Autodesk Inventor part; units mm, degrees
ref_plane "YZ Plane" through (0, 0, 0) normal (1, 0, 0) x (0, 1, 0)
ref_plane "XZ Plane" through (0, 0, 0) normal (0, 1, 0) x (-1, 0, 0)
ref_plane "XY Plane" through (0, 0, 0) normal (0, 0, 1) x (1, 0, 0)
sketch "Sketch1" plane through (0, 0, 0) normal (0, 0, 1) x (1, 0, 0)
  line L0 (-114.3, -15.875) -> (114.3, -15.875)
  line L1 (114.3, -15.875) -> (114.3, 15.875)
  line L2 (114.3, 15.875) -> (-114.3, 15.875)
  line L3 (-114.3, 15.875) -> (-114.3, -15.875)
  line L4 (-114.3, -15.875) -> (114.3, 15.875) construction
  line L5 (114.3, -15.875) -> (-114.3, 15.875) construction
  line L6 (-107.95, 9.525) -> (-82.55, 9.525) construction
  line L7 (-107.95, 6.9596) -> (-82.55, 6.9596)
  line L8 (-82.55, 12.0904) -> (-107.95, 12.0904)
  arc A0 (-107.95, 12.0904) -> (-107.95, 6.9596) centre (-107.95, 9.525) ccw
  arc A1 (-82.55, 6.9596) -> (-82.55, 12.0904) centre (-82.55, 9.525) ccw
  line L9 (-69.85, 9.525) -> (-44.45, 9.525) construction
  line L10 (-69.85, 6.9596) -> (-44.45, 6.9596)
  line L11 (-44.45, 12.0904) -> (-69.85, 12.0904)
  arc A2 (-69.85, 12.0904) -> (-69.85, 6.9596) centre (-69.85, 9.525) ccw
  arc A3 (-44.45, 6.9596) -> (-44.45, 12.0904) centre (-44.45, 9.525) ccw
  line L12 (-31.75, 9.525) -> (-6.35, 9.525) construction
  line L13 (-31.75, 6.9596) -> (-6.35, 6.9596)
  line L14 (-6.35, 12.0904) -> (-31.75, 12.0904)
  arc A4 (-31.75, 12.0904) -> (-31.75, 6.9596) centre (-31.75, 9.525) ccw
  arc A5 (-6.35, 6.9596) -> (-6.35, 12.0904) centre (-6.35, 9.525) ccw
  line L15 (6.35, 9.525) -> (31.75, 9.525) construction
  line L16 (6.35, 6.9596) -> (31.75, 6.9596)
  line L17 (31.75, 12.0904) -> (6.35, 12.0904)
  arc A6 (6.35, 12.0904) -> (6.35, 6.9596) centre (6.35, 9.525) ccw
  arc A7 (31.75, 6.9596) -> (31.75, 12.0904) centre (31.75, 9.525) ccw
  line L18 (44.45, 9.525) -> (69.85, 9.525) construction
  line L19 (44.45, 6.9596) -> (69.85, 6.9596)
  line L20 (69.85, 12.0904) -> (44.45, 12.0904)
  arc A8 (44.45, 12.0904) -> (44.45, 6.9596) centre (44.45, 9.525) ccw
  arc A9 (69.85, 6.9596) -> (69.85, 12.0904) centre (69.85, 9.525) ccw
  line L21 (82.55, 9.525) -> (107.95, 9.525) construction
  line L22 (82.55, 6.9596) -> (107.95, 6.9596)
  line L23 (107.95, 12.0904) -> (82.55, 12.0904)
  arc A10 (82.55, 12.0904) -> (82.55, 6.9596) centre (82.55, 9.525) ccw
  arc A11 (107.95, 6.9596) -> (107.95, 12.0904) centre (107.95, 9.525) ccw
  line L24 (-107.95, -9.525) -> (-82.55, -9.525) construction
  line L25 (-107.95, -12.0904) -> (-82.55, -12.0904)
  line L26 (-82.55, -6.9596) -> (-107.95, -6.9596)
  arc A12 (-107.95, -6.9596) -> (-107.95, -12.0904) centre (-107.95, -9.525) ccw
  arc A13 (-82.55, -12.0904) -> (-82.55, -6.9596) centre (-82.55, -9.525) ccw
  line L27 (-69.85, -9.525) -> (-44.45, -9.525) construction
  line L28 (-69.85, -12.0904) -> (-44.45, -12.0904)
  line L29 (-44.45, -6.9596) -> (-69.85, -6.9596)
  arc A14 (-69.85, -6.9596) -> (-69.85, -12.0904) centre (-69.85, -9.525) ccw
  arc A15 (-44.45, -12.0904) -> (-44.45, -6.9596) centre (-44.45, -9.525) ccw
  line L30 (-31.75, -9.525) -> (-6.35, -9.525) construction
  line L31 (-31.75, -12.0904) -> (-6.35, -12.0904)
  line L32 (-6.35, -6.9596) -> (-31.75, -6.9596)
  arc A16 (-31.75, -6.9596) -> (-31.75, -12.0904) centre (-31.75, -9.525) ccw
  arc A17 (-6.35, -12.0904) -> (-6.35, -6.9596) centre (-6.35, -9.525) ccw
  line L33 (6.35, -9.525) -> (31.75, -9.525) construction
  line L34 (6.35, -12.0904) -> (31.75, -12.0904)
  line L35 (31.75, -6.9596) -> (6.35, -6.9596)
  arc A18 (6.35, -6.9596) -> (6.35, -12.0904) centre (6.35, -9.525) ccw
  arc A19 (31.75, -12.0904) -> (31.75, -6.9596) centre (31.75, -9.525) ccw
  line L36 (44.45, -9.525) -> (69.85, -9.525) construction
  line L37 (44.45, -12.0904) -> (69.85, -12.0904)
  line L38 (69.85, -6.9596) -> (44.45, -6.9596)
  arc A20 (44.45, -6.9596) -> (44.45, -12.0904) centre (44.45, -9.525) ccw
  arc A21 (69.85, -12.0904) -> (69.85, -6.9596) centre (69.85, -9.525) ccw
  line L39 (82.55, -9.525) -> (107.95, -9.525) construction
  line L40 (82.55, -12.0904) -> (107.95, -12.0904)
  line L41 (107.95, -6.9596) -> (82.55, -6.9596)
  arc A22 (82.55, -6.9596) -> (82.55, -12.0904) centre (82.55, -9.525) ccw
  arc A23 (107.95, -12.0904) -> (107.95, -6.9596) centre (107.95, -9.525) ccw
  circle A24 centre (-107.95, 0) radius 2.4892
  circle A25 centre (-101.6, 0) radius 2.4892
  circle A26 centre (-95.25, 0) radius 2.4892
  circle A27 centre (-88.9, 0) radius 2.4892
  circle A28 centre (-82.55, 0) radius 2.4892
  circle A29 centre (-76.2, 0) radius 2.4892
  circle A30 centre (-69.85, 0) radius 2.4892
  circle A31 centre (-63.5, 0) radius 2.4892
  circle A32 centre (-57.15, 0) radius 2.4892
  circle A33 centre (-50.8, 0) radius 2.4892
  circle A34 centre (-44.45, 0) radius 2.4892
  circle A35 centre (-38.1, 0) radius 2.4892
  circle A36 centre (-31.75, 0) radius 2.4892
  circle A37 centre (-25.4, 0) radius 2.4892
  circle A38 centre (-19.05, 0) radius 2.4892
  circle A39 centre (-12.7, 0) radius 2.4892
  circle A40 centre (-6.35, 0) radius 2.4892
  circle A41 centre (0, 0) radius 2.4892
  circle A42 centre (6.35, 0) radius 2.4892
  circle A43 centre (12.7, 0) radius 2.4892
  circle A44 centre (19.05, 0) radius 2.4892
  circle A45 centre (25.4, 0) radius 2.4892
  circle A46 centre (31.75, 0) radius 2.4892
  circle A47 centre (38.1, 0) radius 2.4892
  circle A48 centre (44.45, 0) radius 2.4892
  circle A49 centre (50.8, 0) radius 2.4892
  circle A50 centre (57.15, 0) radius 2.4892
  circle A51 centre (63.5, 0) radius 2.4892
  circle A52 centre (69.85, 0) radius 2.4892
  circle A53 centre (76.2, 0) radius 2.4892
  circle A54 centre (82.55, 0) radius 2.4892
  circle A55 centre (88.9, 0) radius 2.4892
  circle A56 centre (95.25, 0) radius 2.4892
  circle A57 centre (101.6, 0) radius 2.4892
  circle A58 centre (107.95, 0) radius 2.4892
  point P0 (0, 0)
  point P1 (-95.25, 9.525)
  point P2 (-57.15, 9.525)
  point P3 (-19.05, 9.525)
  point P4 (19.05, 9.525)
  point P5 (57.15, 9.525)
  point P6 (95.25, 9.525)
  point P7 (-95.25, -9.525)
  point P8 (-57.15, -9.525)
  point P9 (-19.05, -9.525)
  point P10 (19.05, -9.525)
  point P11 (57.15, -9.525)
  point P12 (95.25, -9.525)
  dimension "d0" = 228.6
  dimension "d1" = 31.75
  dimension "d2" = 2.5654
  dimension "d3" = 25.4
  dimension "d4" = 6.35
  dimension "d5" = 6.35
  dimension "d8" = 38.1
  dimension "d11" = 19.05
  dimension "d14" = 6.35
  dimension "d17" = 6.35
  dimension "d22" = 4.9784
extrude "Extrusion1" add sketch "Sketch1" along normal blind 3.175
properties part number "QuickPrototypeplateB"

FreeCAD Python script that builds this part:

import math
import FreeCAD as App
import Part
import Sketcher

V = App.Vector
Q = App.Units.Quantity

doc = App.newDocument("Part")
body = doc.addObject("PartDesign::Body", "Body")

# Sketch on XY plane
sketch1 = doc.addObject("Sketcher::SketchObject", "Sketch")
body.addObject(sketch1)
sketch1.AttachmentSupport = (doc.XY_Plane, [""])
sketch1.MapMode = "FlatFace"
sketch1.addGeometry(Part.LineSegment(V(-114.3, 15.9, 0), V(-114.3, -15.9, 0)), False)
sketch1.addGeometry(Part.LineSegment(V(-114.3, -15.9, 0), V(114.3, -15.9, 0)), False)
sketch1.addGeometry(Part.LineSegment(V(114.3, -15.9, 0), V(114.3, 15.9, 0)), False)
sketch1.addGeometry(Part.LineSegment(V(114.3, 15.9, 0), V(-114.3, 15.9, 0)), False)
sketch1.addGeometry(Part.LineSegment(V(-82.5, -12.1, 0), V(-108, -12.1, 0)), False)
sketch1.addGeometry(Part.ArcOfCircle(Part.Circle(V(-108, -9.5, 0), V(0, 0, 1), 2.6), math.radians(90), math.radians(270)), False)
sketch1.addGeometry(Part.LineSegment(V(-108, -7, 0), V(-82.5, -7, 0)), False)
sketch1.addGeometry(Part.ArcOfCircle(Part.Circle(V(-82.5, -9.5, 0), V(0, 0, 1), 2.6), math.radians(-90), math.radians(90)), False)
sketch1.addGeometry(Part.LineSegment(V(-44.5, -12.1, 0), V(-69.8, -12.1, 0)), False)
sketch1.addGeometry(Part.ArcOfCircle(Part.Circle(V(-69.8, -9.5, 0), V(0, 0, 1), 2.6), math.radians(90), math.radians(270)), False)
sketch1.addGeometry(Part.LineSegment(V(-69.8, -7, 0), V(-44.5, -7, 0)), False)
sketch1.addGeometry(Part.ArcOfCircle(Part.Circle(V(-44.5, -9.5, 0), V(0, 0, 1), 2.6), math.radians(-90), math.radians(90)), False)
sketch1.addGeometry(Part.LineSegment(V(-6.3, -12.1, 0), V(-31.8, -12.1, 0)), False)
sketch1.addGeometry(Part.ArcOfCircle(Part.Circle(V(-31.8, -9.5, 0), V(0, 0, 1), 2.6), math.radians(90), math.radians(270)), False)
sketch1.addGeometry(Part.LineSegment(V(-31.8, -7, 0), V(-6.3, -7, 0)), False)
sketch1.addGeometry(Part.ArcOfCircle(Part.Circle(V(-6.3, -9.5, 0), V(0, 0, 1), 2.6), math.radians(-90), math.radians(90)), False)
sketch1.addGeometry(Part.LineSegment(V(31.8, -12.1, 0), V(6.3, -12.1, 0)), False)
sketch1.addGeometry(Part.ArcOfCircle(Part.Circle(V(6.3, -9.5, 0), V(0, 0, 1), 2.6), math.radians(90), math.radians(270)), False)
sketch1.addGeometry(Part.LineSegment(V(6.3, -7, 0), V(31.8, -7, 0)), False)
sketch1.addGeometry(Part.ArcOfCircle(Part.Circle(V(31.8, -9.5, 0), V(0, 0, 1), 2.6), math.radians(-90), math.radians(90)), False)
sketch1.addGeometry(Part.LineSegment(V(69.8, -12.1, 0), V(44.5, -12.1, 0)), False)
sketch1.addGeometry(Part.ArcOfCircle(Part.Circle(V(44.5, -9.5, 0), V(0, 0, 1), 2.6), math.radians(90), math.radians(270)), False)
sketch1.addGeometry(Part.LineSegment(V(44.5, -7, 0), V(69.8, -7, 0)), False)
sketch1.addGeometry(Part.ArcOfCircle(Part.Circle(V(69.8, -9.5, 0), V(0, 0, 1), 2.6), math.radians(-90), math.radians(90)), False)
sketch1.addGeometry(Part.LineSegment(V(108, -12.1, 0), V(82.5, -12.1, 0)), False)
sketch1.addGeometry(Part.ArcOfCircle(Part.Circle(V(82.5, -9.5, 0), V(0, 0, 1), 2.6), math.radians(90), math.radians(270)), False)
sketch1.addGeometry(Part.LineSegment(V(82.5, -7, 0), V(108, -7, 0)), False)
sketch1.addGeometry(Part.ArcOfCircle(Part.Circle(V(108, -9.5, 0), V(0, 0, 1), 2.6), math.radians(-90), math.radians(90)), False)
sketch1.addGeometry(Part.Circle(V(-108, 0, 0), V(0, 0, 1), 2.5), False)
sketch1.addGeometry(Part.Circle(V(-101.6, 0, 0), V(0, 0, 1), 2.5), False)
sketch1.addGeometry(Part.Circle(V(-95.2, 0, 0), V(0, 0, 1), 2.5), False)
sketch1.addGeometry(Part.Circle(V(-88.9, 0, 0), V(0, 0, 1), 2.5), False)
sketch1.addGeometry(Part.Circle(V(-82.5, 0, 0), V(0, 0, 1), 2.5), False)
sketch1.addGeometry(Part.Circle(V(-76.2, 0, 0), V(0, 0, 1), 2.5), False)
sketch1.addGeometry(Part.Circle(V(-69.8, 0, 0), V(0, 0, 1), 2.5), False)
sketch1.addGeometry(Part.Circle(V(-63.5, 0, 0), V(0, 0, 1), 2.5), False)
sketch1.addGeometry(Part.Circle(V(-57.1, 0, 0), V(0, 0, 1), 2.5), False)
sketch1.addGeometry(Part.Circle(V(-50.8, 0, 0), V(0, 0, 1), 2.5), False)
sketch1.addGeometry(Part.Circle(V(-44.5, 0, 0), V(0, 0, 1), 2.5), False)
sketch1.addGeometry(Part.Circle(V(-38.1, 0, 0), V(0, 0, 1), 2.5), False)
sketch1.addGeometry(Part.Circle(V(-31.8, 0, 0), V(0, 0, 1), 2.5), False)
sketch1.addGeometry(Part.Circle(V(-25.4, 0, 0), V(0, 0, 1), 2.5), False)
sketch1.addGeometry(Part.Circle(V(-19.1, 0, 0), V(0, 0, 1), 2.5), False)
sketch1.addGeometry(Part.Circle(V(-12.7, 0, 0), V(0, 0, 1), 2.5), False)
sketch1.addGeometry(Part.Circle(V(-6.3, 0, 0), V(0, 0, 1), 2.5), False)
sketch1.addGeometry(Part.LineSegment(V(-82.5, 7, 0), V(-108, 7, 0)), False)
sketch1.addGeometry(Part.ArcOfCircle(Part.Circle(V(-108, 9.5, 0), V(0, 0, 1), 2.6), math.radians(90), math.radians(270)), False)
sketch1.addGeometry(Part.LineSegment(V(-108, 12.1, 0), V(-82.5, 12.1, 0)), False)
sketch1.addGeometry(Part.ArcOfCircle(Part.Circle(V(-82.5, 9.5, 0), V(0, 0, 1), 2.6), math.radians(-90), math.radians(90)), False)
sketch1.addGeometry(Part.LineSegment(V(-44.5, 7, 0), V(-69.8, 7, 0)), False)
sketch1.addGeometry(Part.ArcOfCircle(Part.Circle(V(-69.8, 9.5, 0), V(0, 0, 1), 2.6), math.radians(90), math.radians(270)), False)
sketch1.addGeometry(Part.LineSegment(V(-69.8, 12.1, 0), V(-44.5, 12.1, 0)), False)
sketch1.addGeometry(Part.ArcOfCircle(Part.Circle(V(-44.5, 9.5, 0), V(0, 0, 1), 2.6), math.radians(-90), math.radians(90)), False)
sketch1.addGeometry(Part.LineSegment(V(-6.3, 7, 0), V(-31.8, 7, 0)), False)
sketch1.addGeometry(Part.ArcOfCircle(Part.Circle(V(-31.8, 9.5, 0), V(0, 0, 1), 2.6), math.radians(90), math.radians(270)), False)
sketch1.addGeometry(Part.LineSegment(V(-31.8, 12.1, 0), V(-6.3, 12.1, 0)), False)
sketch1.addGeometry(Part.ArcOfCircle(Part.Circle(V(-6.3, 9.5, 0), V(0, 0, 1), 2.6), math.radians(-90), math.radians(90)), False)
sketch1.addGeometry(Part.Circle(V(0, 0, 0), V(0, 0, 1), 2.5), False)
sketch1.addGeometry(Part.Circle(V(6.3, 0, 0), V(0, 0, 1), 2.5), False)
sketch1.addGeometry(Part.Circle(V(12.7, 0, 0), V(0, 0, 1), 2.5), False)
sketch1.addGeometry(Part.Circle(V(19.1, 0, 0), V(0, 0, 1), 2.5), False)
sketch1.addGeometry(Part.Circle(V(25.4, 0, 0), V(0, 0, 1), 2.5), False)
sketch1.addGeometry(Part.Circle(V(31.8, 0, 0), V(0, 0, 1), 2.5), False)
sketch1.addGeometry(Part.Circle(V(38.1, 0, 0), V(0, 0, 1), 2.5), False)
sketch1.addGeometry(Part.Circle(V(44.5, 0, 0), V(0, 0, 1), 2.5), False)
sketch1.addGeometry(Part.Circle(V(50.8, 0, 0), V(0, 0, 1), 2.5), False)
sketch1.addGeometry(Part.Circle(V(57.1, 0, 0), V(0, 0, 1), 2.5), False)
sketch1.addGeometry(Part.Circle(V(63.5, 0, 0), V(0, 0, 1), 2.5), False)
sketch1.addGeometry(Part.Circle(V(69.8, 0, 0), V(0, 0, 1), 2.5), False)
sketch1.addGeometry(Part.Circle(V(76.2, 0, 0), V(0, 0, 1), 2.5), False)
sketch1.addGeometry(Part.Circle(V(82.5, 0, 0), V(0, 0, 1), 2.5), False)
sketch1.addGeometry(Part.Circle(V(88.9, 0, 0), V(0, 0, 1), 2.5), False)
sketch1.addGeometry(Part.Circle(V(95.2, 0, 0), V(0, 0, 1), 2.5), False)
sketch1.addGeometry(Part.Circle(V(101.6, 0, 0), V(0, 0, 1), 2.5), False)
sketch1.addGeometry(Part.Circle(V(108, 0, 0), V(0, 0, 1), 2.5), False)
sketch1.addGeometry(Part.LineSegment(V(31.8, 7, 0), V(6.3, 7, 0)), False)
sketch1.addGeometry(Part.ArcOfCircle(Part.Circle(V(6.3, 9.5, 0), V(0, 0, 1), 2.6), math.radians(90), math.radians(270)), False)
sketch1.addGeometry(Part.LineSegment(V(6.3, 12.1, 0), V(31.8, 12.1, 0)), False)
sketch1.addGeometry(Part.ArcOfCircle(Part.Circle(V(31.8, 9.5, 0), V(0, 0, 1), 2.6), math.radians(-90), math.radians(90)), False)
sketch1.addGeometry(Part.LineSegment(V(69.8, 7, 0), V(44.5, 7, 0)), False)
sketch1.addGeometry(Part.ArcOfCircle(Part.Circle(V(44.5, 9.5, 0), V(0, 0, 1), 2.6), math.radians(90), math.radians(270)), False)
sketch1.addGeometry(Part.LineSegment(V(44.5, 12.1, 0), V(69.8, 12.1, 0)), False)
sketch1.addGeometry(Part.ArcOfCircle(Part.Circle(V(69.8, 9.5, 0), V(0, 0, 1), 2.6), math.radians(-90), math.radians(90)), False)
sketch1.addGeometry(Part.LineSegment(V(108, 7, 0), V(82.5, 7, 0)), False)
sketch1.addGeometry(Part.ArcOfCircle(Part.Circle(V(82.5, 9.5, 0), V(0, 0, 1), 2.6), math.radians(90), math.radians(270)), False)
sketch1.addGeometry(Part.LineSegment(V(82.5, 12.1, 0), V(108, 12.1, 0)), False)
sketch1.addGeometry(Part.ArcOfCircle(Part.Circle(V(108, 9.5, 0), V(0, 0, 1), 2.6), math.radians(-90), math.radians(90)), False)
sketch1.addConstraint(Sketcher.Constraint("Coincident", 0, 2, 1, 1))
sketch1.addConstraint(Sketcher.Constraint("Coincident", 1, 2, 2, 1))
sketch1.addConstraint(Sketcher.Constraint("Coincident", 2, 2, 3, 1))
sketch1.addConstraint(Sketcher.Constraint("Coincident", 3, 2, 0, 1))
sketch1.addConstraint(Sketcher.Constraint("Tangent", 4, 2, 5, 2))
sketch1.addConstraint(Sketcher.Constraint("Tangent", 5, 1, 6, 1))
sketch1.addConstraint(Sketcher.Constraint("Tangent", 6, 2, 7, 2))
sketch1.addConstraint(Sketcher.Constraint("Tangent", 7, 1, 4, 1))
sketch1.addConstraint(Sketcher.Constraint("Tangent", 8, 2, 9, 2))
sketch1.addConstraint(Sketcher.Constraint("Tangent", 9, 1, 10, 1))
sketch1.addConstraint(Sketcher.Constraint("Tangent", 10, 2, 11, 2))
sketch1.addConstraint(Sketcher.Constraint("Tangent", 11, 1, 8, 1))
sketch1.addConstraint(Sketcher.Constraint("Tangent", 12, 2, 13, 2))
sketch1.addConstraint(Sketcher.Constraint("Tangent", 13, 1, 14, 1))
sketch1.addConstraint(Sketcher.Constraint("Tangent", 14, 2, 15, 2))
sketch1.addConstraint(Sketcher.Constraint("Tangent", 15, 1, 12, 1))
sketch1.addConstraint(Sketcher.Constraint("Tangent", 16, 2, 17, 2))
sketch1.addConstraint(Sketcher.Constraint("Tangent", 17, 1, 18, 1))
sketch1.addConstraint(Sketcher.Constraint("Tangent", 18, 2, 19, 2))
sketch1.addConstraint(Sketcher.Constraint("Tangent", 19, 1, 16, 1))
sketch1.addConstraint(Sketcher.Constraint("Tangent", 20, 2, 21, 2))
sketch1.addConstraint(Sketcher.Constraint("Tangent", 21, 1, 22, 1))
sketch1.addConstraint(Sketcher.Constraint("Tangent", 22, 2, 23, 2))
sketch1.addConstraint(Sketcher.Constraint("Tangent", 23, 1, 20, 1))
sketch1.addConstraint(Sketcher.Constraint("Tangent", 24, 2, 25, 2))
sketch1.addConstraint(Sketcher.Constraint("Tangent", 25, 1, 26, 1))
sketch1.addConstraint(Sketcher.Constraint("Tangent", 26, 2, 27, 2))
sketch1.addConstraint(Sketcher.Constraint("Tangent", 27, 1, 24, 1))
sketch1.addConstraint(Sketcher.Constraint("Tangent", 45, 2, 46, 2))
sketch1.addConstraint(Sketcher.Constraint("Tangent", 46, 1, 47, 1))
sketch1.addConstraint(Sketcher.Constraint("Tangent", 47, 2, 48, 2))
sketch1.addConstraint(Sketcher.Constraint("Tangent", 48, 1, 45, 1))
sketch1.addConstraint(Sketcher.Constraint("Tangent", 49, 2, 50, 2))
sketch1.addConstraint(Sketcher.Constraint("Tangent", 50, 1, 51, 1))
sketch1.addConstraint(Sketcher.Constraint("Tangent", 51, 2, 52, 2))
sketch1.addConstraint(Sketcher.Constraint("Tangent", 52, 1, 49, 1))
sketch1.addConstraint(Sketcher.Constraint("Tangent", 53, 2, 54, 2))
sketch1.addConstraint(Sketcher.Constraint("Tangent", 54, 1, 55, 1))
sketch1.addConstraint(Sketcher.Constraint("Tangent", 55, 2, 56, 2))
sketch1.addConstraint(Sketcher.Constraint("Tangent", 56, 1, 53, 1))
sketch1.addConstraint(Sketcher.Constraint("Tangent", 75, 2, 76, 2))
sketch1.addConstraint(Sketcher.Constraint("Tangent", 76, 1, 77, 1))
sketch1.addConstraint(Sketcher.Constraint("Tangent", 77, 2, 78, 2))
sketch1.addConstraint(Sketcher.Constraint("Tangent", 78, 1, 75, 1))
sketch1.addConstraint(Sketcher.Constraint("Tangent", 79, 2, 80, 2))
sketch1.addConstraint(Sketcher.Constraint("Tangent", 80, 1, 81, 1))
sketch1.addConstraint(Sketcher.Constraint("Tangent", 81, 2, 82, 2))
sketch1.addConstraint(Sketcher.Constraint("Tangent", 82, 1, 79, 1))
sketch1.addConstraint(Sketcher.Constraint("Tangent", 83, 2, 84, 2))
sketch1.addConstraint(Sketcher.Constraint("Tangent", 84, 1, 85, 1))
sketch1.addConstraint(Sketcher.Constraint("Tangent", 85, 2, 86, 2))
sketch1.addConstraint(Sketcher.Constraint("Tangent", 86, 1, 83, 1))
sketch1.addConstraint(Sketcher.Constraint("Vertical", 0))
sketch1.addConstraint(Sketcher.Constraint("Horizontal", 1))
sketch1.addConstraint(Sketcher.Constraint("Vertical", 2))
sketch1.addConstraint(Sketcher.Constraint("Horizontal", 3))
sketch1.addConstraint(Sketcher.Constraint("Horizontal", 4))
sketch1.addConstraint(Sketcher.Constraint("Horizontal", 6))
sketch1.addConstraint(Sketcher.Constraint("Horizontal", 8))
sketch1.addConstraint(Sketcher.Constraint("Horizontal", 10))
sketch1.addConstraint(Sketcher.Constraint("Horizontal", 12))
sketch1.addConstraint(Sketcher.Constraint("Horizontal", 14))
sketch1.addConstraint(Sketcher.Constraint("Horizontal", 16))
sketch1.addConstraint(Sketcher.Constraint("Horizontal", 18))
sketch1.addConstraint(Sketcher.Constraint("Horizontal", 20))
sketch1.addConstraint(Sketcher.Constraint("Horizontal", 22))
sketch1.addConstraint(Sketcher.Constraint("Horizontal", 24))
sketch1.addConstraint(Sketcher.Constraint("Horizontal", 26))
sketch1.addConstraint(Sketcher.Constraint("Horizontal", 45))
sketch1.addConstraint(Sketcher.Constraint("Horizontal", 47))
sketch1.addConstraint(Sketcher.Constraint("Horizontal", 49))
sketch1.addConstraint(Sketcher.Constraint("Horizontal", 51))
sketch1.addConstraint(Sketcher.Constraint("Horizontal", 53))
sketch1.addConstraint(Sketcher.Constraint("Horizontal", 55))
sketch1.addConstraint(Sketcher.Constraint("Horizontal", 75))
sketch1.addConstraint(Sketcher.Constraint("Horizontal", 77))
sketch1.addConstraint(Sketcher.Constraint("Horizontal", 79))
sketch1.addConstraint(Sketcher.Constraint("Horizontal", 81))
sketch1.addConstraint(Sketcher.Constraint("Horizontal", 83))
sketch1.addConstraint(Sketcher.Constraint("Horizontal", 85))
sketch1.addConstraint(Sketcher.Constraint("Coincident", 57, 3, -1, 1))
sketch1.addConstraint(Sketcher.Constraint("Equal", 7, 9))
sketch1.addConstraint(Sketcher.Constraint("Equal", 11, 13))
sketch1.addConstraint(Sketcher.Constraint("Equal", 15, 17))
sketch1.addConstraint(Sketcher.Constraint("Equal", 19, 21))
sketch1.addConstraint(Sketcher.Constraint("Equal", 23, 25))
sketch1.addConstraint(Sketcher.Constraint("Equal", 28, 29))
sketch1.addConstraint(Sketcher.Constraint("Equal", 29, 30))
sketch1.addConstraint(Sketcher.Constraint("Equal", 30, 31))
sketch1.addConstraint(Sketcher.Constraint("Equal", 31, 32))
sketch1.addConstraint(Sketcher.Constraint("Equal", 32, 33))
sketch1.addConstraint(Sketcher.Constraint("Equal", 33, 34))
sketch1.addConstraint(Sketcher.Constraint("Equal", 34, 35))
sketch1.addConstraint(Sketcher.Constraint("Equal", 35, 36))
sketch1.addConstraint(Sketcher.Constraint("Equal", 36, 37))
sketch1.addConstraint(Sketcher.Constraint("Equal", 37, 38))
sketch1.addConstraint(Sketcher.Constraint("Equal", 38, 39))
sketch1.addConstraint(Sketcher.Constraint("Equal", 39, 40))
sketch1.addConstraint(Sketcher.Constraint("Equal", 40, 41))
sketch1.addConstraint(Sketcher.Constraint("Equal", 41, 42))
sketch1.addConstraint(Sketcher.Constraint("Equal", 42, 43))
sketch1.addConstraint(Sketcher.Constraint("Equal", 43, 44))
sketch1.addConstraint(Sketcher.Constraint("Equal", 27, 46))
sketch1.addConstraint(Sketcher.Constraint("Equal", 48, 50))
sketch1.addConstraint(Sketcher.Constraint("Equal", 52, 54))
sketch1.addConstraint(Sketcher.Constraint("Equal", 44, 57))
sketch1.addConstraint(Sketcher.Constraint("Equal", 57, 58))
sketch1.addConstraint(Sketcher.Constraint("Equal", 58, 59))
sketch1.addConstraint(Sketcher.Constraint("Equal", 59, 60))
sketch1.addConstraint(Sketcher.Constraint("Equal", 60, 61))
sketch1.addConstraint(Sketcher.Constraint("Equal", 61, 62))
sketch1.addConstraint(Sketcher.Constraint("Equal", 62, 63))
sketch1.addConstraint(Sketcher.Constraint("Equal", 63, 64))
sketch1.addConstraint(Sketcher.Constraint("Equal", 64, 65))
sketch1.addConstraint(Sketcher.Constraint("Equal", 65, 66))
sketch1.addConstraint(Sketcher.Constraint("Equal", 66, 67))
sketch1.addConstraint(Sketcher.Constraint("Equal", 67, 68))
sketch1.addConstraint(Sketcher.Constraint("Equal", 68, 69))
sketch1.addConstraint(Sketcher.Constraint("Equal", 69, 70))
sketch1.addConstraint(Sketcher.Constraint("Equal", 70, 71))
sketch1.addConstraint(Sketcher.Constraint("Equal", 71, 72))
sketch1.addConstraint(Sketcher.Constraint("Equal", 72, 73))
sketch1.addConstraint(Sketcher.Constraint("Equal", 73, 74))
sketch1.addConstraint(Sketcher.Constraint("Equal", 56, 76))
sketch1.addConstraint(Sketcher.Constraint("Equal", 78, 80))
sketch1.addConstraint(Sketcher.Constraint("Equal", 82, 84))
sketch1.addConstraint(Sketcher.Constraint("Symmetric", 27, 3, 46, 3, -1, 1))
sketch1.addConstraint(Sketcher.Constraint("Symmetric", 23, 3, 50, 3, -1, 1))
sketch1.addConstraint(Sketcher.Constraint("Symmetric", 19, 3, 54, 3, -1, 1))
sketch1.addConstraint(Sketcher.Constraint("Symmetric", 44, 3, 58, 3, -1, 1))
sketch1.addConstraint(Sketcher.Constraint("Symmetric", 43, 3, 59, 3, -1, 1))
sketch1.addConstraint(Sketcher.Constraint("Symmetric", 42, 3, 60, 3, -1, 1))
sketch1.addConstraint(Sketcher.Constraint("Symmetric", 41, 3, 61, 3, -1, 1))
sketch1.addConstraint(Sketcher.Constraint("Symmetric", 40, 3, 62, 3, -1, 1))
sketch1.addConstraint(Sketcher.Constraint("Symmetric", 39, 3, 63, 3, -1, 1))
sketch1.addConstraint(Sketcher.Constraint("Symmetric", 38, 3, 64, 3, -1, 1))
sketch1.addConstraint(Sketcher.Constraint("Symmetric", 37, 3, 65, 3, -1, 1))
sketch1.addConstraint(Sketcher.Constraint("Symmetric", 36, 3, 66, 3, -1, 1))
sketch1.addConstraint(Sketcher.Constraint("Symmetric", 35, 3, 67, 3, -1, 1))
sketch1.addConstraint(Sketcher.Constraint("Symmetric", 34, 3, 68, 3, -1, 1))
sketch1.addConstraint(Sketcher.Constraint("Symmetric", 33, 3, 69, 3, -1, 1))
sketch1.addConstraint(Sketcher.Constraint("Symmetric", 32, 3, 70, 3, -1, 1))
sketch1.addConstraint(Sketcher.Constraint("Symmetric", 31, 3, 71, 3, -1, 1))
sketch1.addConstraint(Sketcher.Constraint("Symmetric", 30, 3, 72, 3, -1, 1))
sketch1.addConstraint(Sketcher.Constraint("Symmetric", 29, 3, 73, 3, -1, 1))
sketch1.addConstraint(Sketcher.Constraint("Symmetric", 28, 3, 74, 3, -1, 1))
sketch1.addConstraint(Sketcher.Constraint("Symmetric", 15, 3, 76, 3, -1, 1))
sketch1.addConstraint(Sketcher.Constraint("Symmetric", 11, 3, 80, 3, -1, 1))
sketch1.addConstraint(Sketcher.Constraint("Symmetric", 7, 3, 84, 3, -1, 1))
sketch1.addConstraint(Sketcher.Constraint("Symmetric", 0, 2, 2, 2, -1, 1))
sketch1.addConstraint(Sketcher.Constraint("Symmetric", 15, 3, 17, 3, -2))
sketch1.addConstraint(Sketcher.Constraint("Symmetric", 11, 3, 21, 3, -2))
sketch1.addConstraint(Sketcher.Constraint("Symmetric", 7, 3, 25, 3, -2))
sketch1.addConstraint(Sketcher.Constraint("PointOnObject", 28, 3, -1))
sketch1.addConstraint(Sketcher.Constraint("PointOnObject", 29, 3, -1))
sketch1.addConstraint(Sketcher.Constraint("PointOnObject", 30, 3, -1))
sketch1.addConstraint(Sketcher.Constraint("PointOnObject", 31, 3, -1))
sketch1.addConstraint(Sketcher.Constraint("PointOnObject", 32, 3, -1))
sketch1.addConstraint(Sketcher.Constraint("PointOnObject", 33, 3, -1))
sketch1.addConstraint(Sketcher.Constraint("PointOnObject", 34, 3, -1))
sketch1.addConstraint(Sketcher.Constraint("PointOnObject", 35, 3, -1))
sketch1.addConstraint(Sketcher.Constraint("PointOnObject", 36, 3, -1))
sketch1.addConstraint(Sketcher.Constraint("PointOnObject", 37, 3, -1))
sketch1.addConstraint(Sketcher.Constraint("PointOnObject", 38, 3, -1))
sketch1.addConstraint(Sketcher.Constraint("PointOnObject", 39, 3, -1))
sketch1.addConstraint(Sketcher.Constraint("PointOnObject", 40, 3, -1))
sketch1.addConstraint(Sketcher.Constraint("PointOnObject", 41, 3, -1))
sketch1.addConstraint(Sketcher.Constraint("PointOnObject", 42, 3, -1))
sketch1.addConstraint(Sketcher.Constraint("PointOnObject", 43, 3, -1))
sketch1.addConstraint(Sketcher.Constraint("PointOnObject", 44, 3, -1))
sketch1.addConstraint(Sketcher.Constraint("Horizontal", 7, 3, 9, 3))
sketch1.addConstraint(Sketcher.Constraint("Horizontal", 11, 3, 13, 3))
sketch1.addConstraint(Sketcher.Constraint("Vertical", 5, 3, 28, 3))
sketch1.addConstraint(Sketcher.Constraint("Vertical", 7, 3, 32, 3))
sketch1.addConstraint(Sketcher.Constraint("Vertical", 9, 3, 34, 3))
sketch1.addConstraint(Sketcher.Constraint("Vertical", 11, 3, 38, 3))
sketch1.addConstraint(Sketcher.Constraint("Vertical", 13, 3, 40, 3))
sketch1.addConstraint(Sketcher.Constraint("Vertical", 15, 3, 44, 3))
sketch1.addConstraint(Sketcher.Constraint("Vertical", 28, 3, 46, 3))
sketch1.addConstraint(Sketcher.Constraint("Vertical", 32, 3, 48, 3))
sketch1.addConstraint(Sketcher.Constraint("Vertical", 34, 3, 50, 3))
sketch1.addConstraint(Sketcher.Constraint("Vertical", 38, 3, 52, 3))
sketch1.addConstraint(Sketcher.Constraint("Vertical", 40, 3, 54, 3))
sketch1.addConstraint(Sketcher.Constraint("Vertical", 44, 3, 56, 3))
sketch1.addConstraint(Sketcher.Constraint("Vertical", 62, 3, 78, 3))
sketch1.addConstraint(Sketcher.Constraint("Vertical", 68, 3, 82, 3))
sketch1.addConstraint(Sketcher.Constraint("Vertical", 74, 3, 86, 3))
sketch1.addConstraint(Sketcher.Constraint("Equal", 6, 8))
sketch1.addConstraint(Sketcher.Constraint("Equal", 10, 12))
sketch1.addConstraint(Sketcher.Constraint("DistanceX", 1, 1, 1, 2, Q("9 in")))
sketch1.addConstraint(Sketcher.Constraint("DistanceX", 4, 2, 4, 1, Q("1 in")))
sketch1.addConstraint(Sketcher.Constraint("Diameter", 28, Q("0.196 in")))
sketch1.addConstraint(Sketcher.Constraint("DistanceX", 41, 3, -1, 1, Q("1 in")))
sketch1.addConstraint(Sketcher.Constraint("Radius", 5, Q("0.101 in")))
sketch1.addConstraint(Sketcher.Constraint("DistanceY", 0, 2, 0, 1, Q("1.25 in")))
sketch1.addConstraint(Sketcher.Constraint("DistanceX", 39, 3, -1, 1, Q("1.5 in")))
sketch1.addConstraint(Sketcher.Constraint("DistanceX", 13, 3, -1, 1, Q("1.25 in")))
sketch1.addConstraint(Sketcher.Constraint("DistanceX", 42, 3, -1, 1, Q("0.75 in")))
sketch1.addConstraint(Sketcher.Constraint("DistanceX", 29, 3, -1, 1, Q("4 in")))
sketch1.addConstraint(Sketcher.Constraint("DistanceX", 33, 3, -1, 1, Q("3 in")))
sketch1.addConstraint(Sketcher.Constraint("DistanceX", 37, 3, -1, 1, Q("2 in")))
sketch1.addConstraint(Sketcher.Constraint("DistanceX", 31, 3, -1, 1, Q("3.5 in")))
sketch1.addConstraint(Sketcher.Constraint("DistanceX", 35, 3, -1, 1, Q("2.5 in")))
sketch1.addConstraint(Sketcher.Constraint("DistanceX", 43, 3, -1, 1, Q("0.5 in")))
sketch1.addConstraint(Sketcher.Constraint("DistanceX", 5, 3, -1, 1, Q("4.25 in")))
sketch1.addConstraint(Sketcher.Constraint("DistanceX", 9, 3, -1, 1, Q("2.75 in")))
sketch1.addConstraint(Sketcher.Constraint("DistanceX", 30, 3, -1, 1, Q("3.75 in")))
sketch1.addConstraint(Sketcher.Constraint("DistanceX", 36, 3, -1, 1, Q("2.25 in")))
sketch1.addConstraint(Sketcher.Constraint("DistanceY", 5, 3, -1, 1, Q("0.375 in")))
pad1 = doc.addObject("PartDesign::Pad", "Pad")
body.addObject(pad1)
pad1.Profile = sketch1
pad1.Length = Q("0.125 in")

doc.recompute()
